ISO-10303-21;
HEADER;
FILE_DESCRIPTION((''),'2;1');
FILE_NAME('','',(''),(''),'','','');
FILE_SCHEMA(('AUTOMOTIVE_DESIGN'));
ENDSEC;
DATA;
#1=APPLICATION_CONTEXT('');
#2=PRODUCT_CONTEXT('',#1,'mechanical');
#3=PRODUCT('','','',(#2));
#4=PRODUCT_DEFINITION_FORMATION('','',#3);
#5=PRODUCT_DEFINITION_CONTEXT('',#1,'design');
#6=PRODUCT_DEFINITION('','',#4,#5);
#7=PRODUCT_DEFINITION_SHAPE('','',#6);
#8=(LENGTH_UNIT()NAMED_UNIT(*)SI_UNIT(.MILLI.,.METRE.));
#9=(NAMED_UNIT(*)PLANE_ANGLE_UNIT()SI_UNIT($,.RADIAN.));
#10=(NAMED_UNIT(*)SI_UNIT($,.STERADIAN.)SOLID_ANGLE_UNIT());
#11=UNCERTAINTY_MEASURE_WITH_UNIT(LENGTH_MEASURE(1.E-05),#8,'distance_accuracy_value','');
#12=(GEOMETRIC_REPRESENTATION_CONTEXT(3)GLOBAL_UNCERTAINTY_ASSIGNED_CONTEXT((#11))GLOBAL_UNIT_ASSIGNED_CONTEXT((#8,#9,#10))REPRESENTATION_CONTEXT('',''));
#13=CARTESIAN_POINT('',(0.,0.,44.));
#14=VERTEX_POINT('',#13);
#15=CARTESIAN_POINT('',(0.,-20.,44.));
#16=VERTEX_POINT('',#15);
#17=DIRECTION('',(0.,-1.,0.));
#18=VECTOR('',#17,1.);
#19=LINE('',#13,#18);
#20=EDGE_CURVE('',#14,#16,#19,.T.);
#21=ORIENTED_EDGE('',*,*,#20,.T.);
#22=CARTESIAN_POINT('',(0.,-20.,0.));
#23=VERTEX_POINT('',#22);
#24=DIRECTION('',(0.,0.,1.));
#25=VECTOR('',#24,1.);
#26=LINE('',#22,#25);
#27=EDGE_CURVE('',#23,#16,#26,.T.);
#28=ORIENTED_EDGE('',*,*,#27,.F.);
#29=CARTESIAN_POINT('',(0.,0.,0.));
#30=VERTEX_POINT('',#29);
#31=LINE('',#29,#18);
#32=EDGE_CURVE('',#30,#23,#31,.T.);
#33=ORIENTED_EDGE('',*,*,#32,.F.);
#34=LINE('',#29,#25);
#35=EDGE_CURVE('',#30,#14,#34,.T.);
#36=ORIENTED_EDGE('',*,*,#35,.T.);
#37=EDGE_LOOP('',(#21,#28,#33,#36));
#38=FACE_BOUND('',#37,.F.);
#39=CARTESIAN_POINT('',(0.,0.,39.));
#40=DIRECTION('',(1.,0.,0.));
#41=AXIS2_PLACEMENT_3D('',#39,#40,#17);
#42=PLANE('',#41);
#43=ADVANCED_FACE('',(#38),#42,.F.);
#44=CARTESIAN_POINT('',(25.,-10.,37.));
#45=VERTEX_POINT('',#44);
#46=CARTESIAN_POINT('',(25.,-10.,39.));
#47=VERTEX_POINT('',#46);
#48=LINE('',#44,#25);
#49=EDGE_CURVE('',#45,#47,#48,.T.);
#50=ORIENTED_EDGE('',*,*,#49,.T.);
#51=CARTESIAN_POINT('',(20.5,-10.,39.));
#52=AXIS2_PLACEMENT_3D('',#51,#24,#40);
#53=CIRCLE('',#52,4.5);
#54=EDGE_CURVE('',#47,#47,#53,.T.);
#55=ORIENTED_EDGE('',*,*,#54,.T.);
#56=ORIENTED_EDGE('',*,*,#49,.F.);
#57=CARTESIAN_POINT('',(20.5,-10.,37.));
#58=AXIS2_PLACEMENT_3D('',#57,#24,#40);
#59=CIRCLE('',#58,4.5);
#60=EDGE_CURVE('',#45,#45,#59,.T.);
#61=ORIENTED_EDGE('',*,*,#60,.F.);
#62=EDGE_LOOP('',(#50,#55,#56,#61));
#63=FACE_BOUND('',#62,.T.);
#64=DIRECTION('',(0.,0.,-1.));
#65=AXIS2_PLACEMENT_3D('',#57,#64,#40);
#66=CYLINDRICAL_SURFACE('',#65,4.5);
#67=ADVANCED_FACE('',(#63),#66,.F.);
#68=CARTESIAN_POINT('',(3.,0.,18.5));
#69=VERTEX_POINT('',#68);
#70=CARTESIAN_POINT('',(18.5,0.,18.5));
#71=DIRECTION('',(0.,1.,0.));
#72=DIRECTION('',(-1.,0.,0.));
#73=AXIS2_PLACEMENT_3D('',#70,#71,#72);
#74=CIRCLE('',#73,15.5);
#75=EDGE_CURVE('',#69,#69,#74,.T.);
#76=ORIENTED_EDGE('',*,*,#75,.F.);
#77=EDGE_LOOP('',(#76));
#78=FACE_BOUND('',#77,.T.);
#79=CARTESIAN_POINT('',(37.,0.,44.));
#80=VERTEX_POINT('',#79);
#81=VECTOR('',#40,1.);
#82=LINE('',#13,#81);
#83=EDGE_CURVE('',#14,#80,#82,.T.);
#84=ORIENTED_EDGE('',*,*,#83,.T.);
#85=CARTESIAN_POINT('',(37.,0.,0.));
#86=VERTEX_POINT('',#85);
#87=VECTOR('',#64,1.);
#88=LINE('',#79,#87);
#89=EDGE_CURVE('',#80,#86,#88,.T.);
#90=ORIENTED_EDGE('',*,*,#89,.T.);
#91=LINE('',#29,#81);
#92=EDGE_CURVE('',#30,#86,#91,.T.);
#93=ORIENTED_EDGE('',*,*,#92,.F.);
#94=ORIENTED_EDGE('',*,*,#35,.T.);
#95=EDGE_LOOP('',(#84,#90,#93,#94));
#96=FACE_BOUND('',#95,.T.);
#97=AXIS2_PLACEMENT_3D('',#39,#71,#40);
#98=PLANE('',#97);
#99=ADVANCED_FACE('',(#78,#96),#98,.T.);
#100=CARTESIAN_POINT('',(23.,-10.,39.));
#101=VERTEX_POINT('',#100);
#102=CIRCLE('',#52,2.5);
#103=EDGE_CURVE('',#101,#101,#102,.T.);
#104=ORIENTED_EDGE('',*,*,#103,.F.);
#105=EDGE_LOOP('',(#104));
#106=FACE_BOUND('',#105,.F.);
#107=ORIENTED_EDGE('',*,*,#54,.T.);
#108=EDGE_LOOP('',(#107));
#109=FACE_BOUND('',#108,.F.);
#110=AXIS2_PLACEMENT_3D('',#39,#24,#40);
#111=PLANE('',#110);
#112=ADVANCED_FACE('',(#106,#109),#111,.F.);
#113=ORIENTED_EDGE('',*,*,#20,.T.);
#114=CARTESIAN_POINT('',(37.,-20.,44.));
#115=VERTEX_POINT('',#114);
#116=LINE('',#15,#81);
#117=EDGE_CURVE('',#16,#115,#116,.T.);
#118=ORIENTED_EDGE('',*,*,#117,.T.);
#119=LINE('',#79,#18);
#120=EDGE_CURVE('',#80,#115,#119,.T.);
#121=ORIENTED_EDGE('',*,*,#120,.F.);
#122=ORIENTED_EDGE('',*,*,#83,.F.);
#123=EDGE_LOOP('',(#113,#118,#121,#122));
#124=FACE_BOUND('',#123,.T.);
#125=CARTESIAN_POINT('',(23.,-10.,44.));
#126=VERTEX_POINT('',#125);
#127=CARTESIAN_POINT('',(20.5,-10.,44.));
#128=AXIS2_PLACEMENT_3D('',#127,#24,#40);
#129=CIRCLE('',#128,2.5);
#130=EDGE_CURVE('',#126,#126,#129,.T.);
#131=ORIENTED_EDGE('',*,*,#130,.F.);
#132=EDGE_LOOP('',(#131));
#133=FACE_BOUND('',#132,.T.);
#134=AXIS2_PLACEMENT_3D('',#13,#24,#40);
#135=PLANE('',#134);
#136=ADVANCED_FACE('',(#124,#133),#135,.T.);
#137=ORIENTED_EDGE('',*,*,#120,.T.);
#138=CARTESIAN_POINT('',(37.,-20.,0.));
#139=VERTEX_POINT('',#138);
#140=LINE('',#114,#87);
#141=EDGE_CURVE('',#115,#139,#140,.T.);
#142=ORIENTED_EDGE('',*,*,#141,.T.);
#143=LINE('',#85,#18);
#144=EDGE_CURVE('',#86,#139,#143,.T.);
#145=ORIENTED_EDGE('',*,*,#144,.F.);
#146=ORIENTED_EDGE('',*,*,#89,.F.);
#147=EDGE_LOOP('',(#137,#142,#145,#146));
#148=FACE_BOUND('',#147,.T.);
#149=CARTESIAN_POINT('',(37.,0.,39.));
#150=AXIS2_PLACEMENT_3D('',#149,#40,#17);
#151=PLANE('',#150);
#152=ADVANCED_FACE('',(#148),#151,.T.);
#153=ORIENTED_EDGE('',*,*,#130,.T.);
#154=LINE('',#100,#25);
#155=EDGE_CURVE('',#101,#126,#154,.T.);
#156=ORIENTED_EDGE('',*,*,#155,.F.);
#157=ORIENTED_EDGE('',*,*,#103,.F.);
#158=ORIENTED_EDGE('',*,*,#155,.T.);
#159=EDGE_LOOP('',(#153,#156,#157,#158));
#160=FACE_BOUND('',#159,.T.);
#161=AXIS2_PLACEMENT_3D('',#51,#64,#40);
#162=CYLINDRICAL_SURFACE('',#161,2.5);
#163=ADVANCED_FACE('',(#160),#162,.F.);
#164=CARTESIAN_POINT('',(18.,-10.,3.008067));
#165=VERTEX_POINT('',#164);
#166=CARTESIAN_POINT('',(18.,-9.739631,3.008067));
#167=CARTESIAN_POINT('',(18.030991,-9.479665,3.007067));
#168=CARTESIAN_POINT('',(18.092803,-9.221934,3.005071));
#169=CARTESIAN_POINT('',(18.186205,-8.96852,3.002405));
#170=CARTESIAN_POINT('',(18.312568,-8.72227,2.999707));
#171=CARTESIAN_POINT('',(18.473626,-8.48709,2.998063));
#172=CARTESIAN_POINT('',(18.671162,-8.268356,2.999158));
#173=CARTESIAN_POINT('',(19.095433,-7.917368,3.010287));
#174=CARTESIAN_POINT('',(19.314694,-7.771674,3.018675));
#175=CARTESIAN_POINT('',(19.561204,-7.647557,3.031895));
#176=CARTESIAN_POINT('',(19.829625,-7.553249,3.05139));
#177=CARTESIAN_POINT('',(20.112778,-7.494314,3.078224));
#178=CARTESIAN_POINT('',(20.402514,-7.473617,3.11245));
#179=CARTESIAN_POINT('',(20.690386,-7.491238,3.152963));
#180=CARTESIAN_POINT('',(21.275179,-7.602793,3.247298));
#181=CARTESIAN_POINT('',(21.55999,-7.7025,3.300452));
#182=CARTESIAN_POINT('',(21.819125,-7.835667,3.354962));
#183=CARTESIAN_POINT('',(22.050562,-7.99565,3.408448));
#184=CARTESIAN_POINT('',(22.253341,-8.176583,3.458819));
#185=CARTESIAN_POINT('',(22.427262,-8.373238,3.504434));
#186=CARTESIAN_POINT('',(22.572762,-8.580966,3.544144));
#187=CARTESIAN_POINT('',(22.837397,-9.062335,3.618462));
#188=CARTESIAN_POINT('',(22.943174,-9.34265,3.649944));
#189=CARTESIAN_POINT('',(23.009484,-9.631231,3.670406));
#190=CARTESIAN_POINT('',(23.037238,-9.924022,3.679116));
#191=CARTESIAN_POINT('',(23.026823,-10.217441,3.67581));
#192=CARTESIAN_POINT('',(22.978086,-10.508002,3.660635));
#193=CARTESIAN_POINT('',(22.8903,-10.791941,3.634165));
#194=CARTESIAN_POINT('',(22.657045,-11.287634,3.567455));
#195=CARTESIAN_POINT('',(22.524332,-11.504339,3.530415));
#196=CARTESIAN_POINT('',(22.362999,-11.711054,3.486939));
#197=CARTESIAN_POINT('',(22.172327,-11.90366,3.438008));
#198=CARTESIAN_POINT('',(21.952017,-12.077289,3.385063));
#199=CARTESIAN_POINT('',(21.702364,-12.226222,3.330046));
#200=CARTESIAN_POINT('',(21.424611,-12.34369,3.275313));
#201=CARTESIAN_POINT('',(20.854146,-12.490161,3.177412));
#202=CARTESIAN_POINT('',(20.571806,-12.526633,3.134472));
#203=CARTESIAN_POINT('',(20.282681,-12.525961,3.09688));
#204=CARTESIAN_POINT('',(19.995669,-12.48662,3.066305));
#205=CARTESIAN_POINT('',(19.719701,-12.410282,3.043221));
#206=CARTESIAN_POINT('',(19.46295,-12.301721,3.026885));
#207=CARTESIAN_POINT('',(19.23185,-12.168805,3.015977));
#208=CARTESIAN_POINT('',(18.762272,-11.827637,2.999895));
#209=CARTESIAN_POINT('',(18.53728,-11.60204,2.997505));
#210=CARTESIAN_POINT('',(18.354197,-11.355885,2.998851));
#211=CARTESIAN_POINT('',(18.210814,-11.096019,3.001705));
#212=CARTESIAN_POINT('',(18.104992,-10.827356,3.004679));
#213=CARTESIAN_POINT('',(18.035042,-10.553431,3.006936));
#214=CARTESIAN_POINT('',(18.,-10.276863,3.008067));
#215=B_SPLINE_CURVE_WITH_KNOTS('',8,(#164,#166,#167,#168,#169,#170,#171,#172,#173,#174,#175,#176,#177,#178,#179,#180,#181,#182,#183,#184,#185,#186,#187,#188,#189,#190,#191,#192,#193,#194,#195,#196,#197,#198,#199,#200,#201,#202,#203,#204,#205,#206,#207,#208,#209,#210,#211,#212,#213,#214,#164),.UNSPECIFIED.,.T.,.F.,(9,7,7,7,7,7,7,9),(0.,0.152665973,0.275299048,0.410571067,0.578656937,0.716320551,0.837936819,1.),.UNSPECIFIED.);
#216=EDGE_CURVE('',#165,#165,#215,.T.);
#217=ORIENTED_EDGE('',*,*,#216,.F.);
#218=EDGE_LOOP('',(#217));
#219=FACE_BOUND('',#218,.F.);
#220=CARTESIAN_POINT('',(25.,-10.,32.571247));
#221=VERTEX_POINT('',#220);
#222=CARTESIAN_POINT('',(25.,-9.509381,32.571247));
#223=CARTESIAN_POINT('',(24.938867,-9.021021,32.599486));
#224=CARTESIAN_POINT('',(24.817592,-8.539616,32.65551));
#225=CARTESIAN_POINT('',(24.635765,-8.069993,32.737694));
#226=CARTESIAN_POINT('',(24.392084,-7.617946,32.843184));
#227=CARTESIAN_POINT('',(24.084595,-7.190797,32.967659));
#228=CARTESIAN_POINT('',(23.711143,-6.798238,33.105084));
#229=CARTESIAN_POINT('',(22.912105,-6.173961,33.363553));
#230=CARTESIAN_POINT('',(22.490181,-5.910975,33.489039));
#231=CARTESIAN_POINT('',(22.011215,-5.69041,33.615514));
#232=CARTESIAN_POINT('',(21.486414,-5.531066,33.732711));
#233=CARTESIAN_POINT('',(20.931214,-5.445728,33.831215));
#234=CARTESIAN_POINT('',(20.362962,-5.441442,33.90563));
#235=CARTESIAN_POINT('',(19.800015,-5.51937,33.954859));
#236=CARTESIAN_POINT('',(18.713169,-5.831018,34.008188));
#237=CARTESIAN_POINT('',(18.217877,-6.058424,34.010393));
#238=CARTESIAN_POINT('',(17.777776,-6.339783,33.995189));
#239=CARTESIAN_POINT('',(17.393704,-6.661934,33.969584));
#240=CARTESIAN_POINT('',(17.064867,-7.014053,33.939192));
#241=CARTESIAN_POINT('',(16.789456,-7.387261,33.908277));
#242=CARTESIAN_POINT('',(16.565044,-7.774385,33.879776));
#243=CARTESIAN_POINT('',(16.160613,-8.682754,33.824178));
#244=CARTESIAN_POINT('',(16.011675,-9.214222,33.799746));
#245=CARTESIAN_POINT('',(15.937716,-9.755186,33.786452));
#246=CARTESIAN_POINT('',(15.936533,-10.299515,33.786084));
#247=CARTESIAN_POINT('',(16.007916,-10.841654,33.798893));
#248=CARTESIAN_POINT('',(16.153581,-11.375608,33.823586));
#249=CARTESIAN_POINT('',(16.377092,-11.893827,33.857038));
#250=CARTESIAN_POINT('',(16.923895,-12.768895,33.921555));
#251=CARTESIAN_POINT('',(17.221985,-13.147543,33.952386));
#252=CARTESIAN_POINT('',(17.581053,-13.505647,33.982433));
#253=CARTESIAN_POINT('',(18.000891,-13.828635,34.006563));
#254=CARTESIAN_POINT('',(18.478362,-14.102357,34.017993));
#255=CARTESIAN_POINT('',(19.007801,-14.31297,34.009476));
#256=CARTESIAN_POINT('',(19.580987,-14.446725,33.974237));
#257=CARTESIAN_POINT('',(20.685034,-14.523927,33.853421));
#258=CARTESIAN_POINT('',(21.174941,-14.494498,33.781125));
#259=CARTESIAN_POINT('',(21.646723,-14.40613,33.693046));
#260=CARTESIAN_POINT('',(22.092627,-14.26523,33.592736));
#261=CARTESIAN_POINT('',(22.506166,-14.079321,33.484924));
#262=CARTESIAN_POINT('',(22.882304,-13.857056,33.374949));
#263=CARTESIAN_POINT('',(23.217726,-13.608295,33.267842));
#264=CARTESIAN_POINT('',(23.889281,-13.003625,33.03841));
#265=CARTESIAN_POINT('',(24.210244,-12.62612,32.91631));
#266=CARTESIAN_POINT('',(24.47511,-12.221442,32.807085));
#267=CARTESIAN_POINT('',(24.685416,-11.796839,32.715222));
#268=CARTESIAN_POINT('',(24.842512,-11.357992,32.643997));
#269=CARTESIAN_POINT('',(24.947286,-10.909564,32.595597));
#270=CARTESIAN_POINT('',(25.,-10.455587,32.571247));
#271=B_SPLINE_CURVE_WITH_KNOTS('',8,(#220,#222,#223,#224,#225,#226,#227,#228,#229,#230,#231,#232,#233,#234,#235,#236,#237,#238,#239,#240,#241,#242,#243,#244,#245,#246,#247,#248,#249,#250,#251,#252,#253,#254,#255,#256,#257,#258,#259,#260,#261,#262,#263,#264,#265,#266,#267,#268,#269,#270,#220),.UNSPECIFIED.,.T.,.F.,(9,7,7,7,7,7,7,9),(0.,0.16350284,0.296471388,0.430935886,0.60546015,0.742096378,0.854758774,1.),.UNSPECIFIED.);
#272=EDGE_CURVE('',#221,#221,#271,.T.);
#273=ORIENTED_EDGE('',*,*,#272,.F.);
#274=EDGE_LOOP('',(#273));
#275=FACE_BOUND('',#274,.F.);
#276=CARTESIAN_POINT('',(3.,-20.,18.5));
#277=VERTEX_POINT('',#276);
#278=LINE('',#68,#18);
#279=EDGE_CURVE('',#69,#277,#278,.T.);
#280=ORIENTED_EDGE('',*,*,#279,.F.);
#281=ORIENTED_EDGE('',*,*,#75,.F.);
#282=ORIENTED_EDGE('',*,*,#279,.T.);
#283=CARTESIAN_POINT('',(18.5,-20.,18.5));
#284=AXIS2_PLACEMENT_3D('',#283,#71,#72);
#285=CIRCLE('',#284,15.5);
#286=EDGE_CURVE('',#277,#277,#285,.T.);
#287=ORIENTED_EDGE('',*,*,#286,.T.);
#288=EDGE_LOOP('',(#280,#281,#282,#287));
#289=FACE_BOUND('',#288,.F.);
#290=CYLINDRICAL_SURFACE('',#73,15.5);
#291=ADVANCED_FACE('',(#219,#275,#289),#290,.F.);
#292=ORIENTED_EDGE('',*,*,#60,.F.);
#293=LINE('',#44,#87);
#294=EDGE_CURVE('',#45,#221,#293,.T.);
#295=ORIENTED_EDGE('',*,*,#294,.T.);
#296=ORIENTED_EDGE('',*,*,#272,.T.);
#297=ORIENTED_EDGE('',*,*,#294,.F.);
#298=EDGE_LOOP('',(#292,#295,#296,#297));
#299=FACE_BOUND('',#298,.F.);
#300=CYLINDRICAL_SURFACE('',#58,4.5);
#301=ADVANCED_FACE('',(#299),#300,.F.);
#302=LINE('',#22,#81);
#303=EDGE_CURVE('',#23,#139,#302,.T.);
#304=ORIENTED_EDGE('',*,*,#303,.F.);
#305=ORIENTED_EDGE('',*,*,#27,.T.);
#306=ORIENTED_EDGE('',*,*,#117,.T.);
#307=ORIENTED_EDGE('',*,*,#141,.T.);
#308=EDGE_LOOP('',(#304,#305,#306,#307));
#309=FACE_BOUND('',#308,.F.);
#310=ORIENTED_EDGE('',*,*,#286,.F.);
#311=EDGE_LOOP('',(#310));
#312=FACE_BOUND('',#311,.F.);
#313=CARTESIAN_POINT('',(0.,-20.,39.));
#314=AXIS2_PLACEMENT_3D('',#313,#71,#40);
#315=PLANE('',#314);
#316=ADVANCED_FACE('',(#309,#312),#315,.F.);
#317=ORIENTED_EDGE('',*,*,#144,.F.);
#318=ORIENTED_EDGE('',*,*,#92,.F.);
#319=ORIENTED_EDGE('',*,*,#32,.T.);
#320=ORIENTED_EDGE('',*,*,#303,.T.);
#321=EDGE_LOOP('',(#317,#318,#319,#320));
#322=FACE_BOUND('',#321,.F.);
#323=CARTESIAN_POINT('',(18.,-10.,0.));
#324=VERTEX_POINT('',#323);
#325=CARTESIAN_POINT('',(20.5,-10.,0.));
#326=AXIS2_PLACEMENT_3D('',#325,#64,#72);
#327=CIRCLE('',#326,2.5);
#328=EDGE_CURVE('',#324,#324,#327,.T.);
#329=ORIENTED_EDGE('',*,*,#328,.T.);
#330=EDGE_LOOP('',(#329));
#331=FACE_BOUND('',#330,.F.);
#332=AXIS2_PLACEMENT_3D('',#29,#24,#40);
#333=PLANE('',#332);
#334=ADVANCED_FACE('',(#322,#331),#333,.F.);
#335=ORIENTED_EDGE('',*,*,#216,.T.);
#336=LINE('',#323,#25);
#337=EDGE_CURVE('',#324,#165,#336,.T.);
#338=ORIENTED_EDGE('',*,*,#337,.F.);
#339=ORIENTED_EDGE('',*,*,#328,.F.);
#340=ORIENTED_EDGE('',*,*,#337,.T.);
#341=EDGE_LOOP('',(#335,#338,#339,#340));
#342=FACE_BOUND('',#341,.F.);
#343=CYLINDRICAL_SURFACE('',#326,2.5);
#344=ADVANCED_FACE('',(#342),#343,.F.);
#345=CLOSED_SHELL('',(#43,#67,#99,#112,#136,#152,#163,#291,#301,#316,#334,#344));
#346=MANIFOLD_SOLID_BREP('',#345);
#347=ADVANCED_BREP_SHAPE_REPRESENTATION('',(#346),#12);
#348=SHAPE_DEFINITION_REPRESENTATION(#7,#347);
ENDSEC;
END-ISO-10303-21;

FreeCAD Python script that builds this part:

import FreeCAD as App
import Part
import Sketcher

V = App.Vector


def add_polygon(sketch, points):
    """Adds a closed chain of lines whose ends are joined by coincident constraints."""
    first, n = sketch.GeometryCount, len(points)
    for a, b in zip(points, points[1:] + points[:1]):
        sketch.addGeometry(Part.LineSegment(App.Vector(*a, 0), App.Vector(*b, 0)), False)
    for i in range(n):
        sketch.addConstraint(Sketcher.Constraint("Coincident", first + i, 2, first + (i + 1) % n, 1))

doc = App.newDocument("Part")
body = doc.addObject("PartDesign::Body", "Body")

# Sketch on XZ plane
sketch1 = body.newObject("Sketcher::SketchObject", "Sketch")
sketch1.AttachmentSupport = (doc.getObject("XZ_Plane"), [""])
sketch1.MapMode = "FlatFace"
add_polygon(sketch1, [(37, 0), (0, 0), (0, 37), (37, 37)])  # lines 0-3
sketch1.addGeometry(Part.Circle(V(18, 18, 0), V(0, 0, 1), 16), False)  # 4
sketch1.addConstraint([
    Sketcher.Constraint("Horizontal", 0),
    Sketcher.Constraint("Vertical", 1),
    Sketcher.Constraint("Horizontal", 2),
    Sketcher.Constraint("Vertical", 3),
    Sketcher.Constraint("Coincident", 0, 2, -1, 1),
    Sketcher.Constraint("Equal", 2, 1),
    Sketcher.Constraint("Diameter", 4, 31.0),
    Sketcher.Constraint("DistanceX", 0, 2, 0, 1, 37.0),
    Sketcher.Constraint("DistanceX", -1, 1, 4, 3, 18.5),
    Sketcher.Constraint("DistanceY", -1, 1, 4, 3, 18.5),
])
pad1 = body.newObject("PartDesign::Pad", "Pad")
pad1.Profile = sketch1
pad1.Length = 20

# Sketch on XY plane
sketch2 = body.newObject("Sketcher::SketchObject", "Sketch001")
sketch2.AttachmentSupport = (doc.getObject("XY_Plane"), [""])
sketch2.MapMode = "FlatFace"
sketch2.AttachmentOffset = App.Placement(V(0, 0, 37), App.Rotation())
sketch2.addGeometry(Part.Circle(V(20.5, -10, 0), V(0, 0, 1), 4.5), False)
sketch2.addConstraint([
    Sketcher.Constraint("Diameter", 0, 9.0),
    Sketcher.Constraint("DistanceY", 0, 3, -1, 1, 10.0),
    Sketcher.Constraint("DistanceX", -1, 1, 0, 3, 20.5),
])
pocket1 = body.newObject("PartDesign::Pocket", "Pocket")
pocket1.Profile = sketch2
pocket1.Length = 5

# Sketch on XY plane
sketch3 = body.newObject("Sketcher::SketchObject", "Sketch002")
sketch3.AttachmentSupport = (doc.getObject("XY_Plane"), [""])
sketch3.MapMode = "FlatFace"
sketch3.addGeometry(Part.Circle(V(20.5, -10, 0), V(0, 0, 1), 2.5), False)
sketch3.addConstraint([
    Sketcher.Constraint("Diameter", 0, 5.0),
    Sketcher.Constraint("DistanceY", 0, 3, -1, 1, 10.0),
    Sketcher.Constraint("DistanceX", -1, 1, 0, 3, 20.5),
])
pocket2 = body.newObject("PartDesign::Pocket", "Pocket001")
pocket2.Profile = sketch3
pocket2.Length = 5
pocket2.Reversed = True

# Sketch on XY plane
sketch4 = body.newObject("Sketcher::SketchObject", "Sketch003")
sketch4.AttachmentSupport = (doc.getObject("XY_Plane"), [""])
sketch4.MapMode = "FlatFace"
sketch4.AttachmentOffset = App.Placement(V(0, 0, 37), App.Rotation())
add_polygon(sketch4, [(37, -20), (37, 0), (0, 0), (0, -20)])  # lines 0-3
sketch4.addGeometry(Part.Circle(V(20.5, -10, 0), V(0, 0, 1), 4.5), False)  # 4
sketch4.addConstraint([
    Sketcher.Constraint("Vertical", 0),
    Sketcher.Constraint("Horizontal", 1),
    Sketcher.Constraint("Vertical", 2),
    Sketcher.Constraint("Horizontal", 3),
    Sketcher.Constraint("Coincident", 1, 2, -1, 1),
    Sketcher.Constraint("Diameter", 4, 9.0),
    Sketcher.Constraint("DistanceX", 1, 2, 1, 1, 37.0),
    Sketcher.Constraint("DistanceY", 0, 1, 0, 2, 20.0),
    Sketcher.Constraint("DistanceY", 4, 3, -1, 1, 10.0),
    Sketcher.Constraint("DistanceX", -1, 1, 4, 3, 20.5),
])
pad2 = body.newObject("PartDesign::Pad", "Pad001")
pad2.Profile = sketch4
pad2.Length = 2

# Sketch on XY plane
sketch5 = body.newObject("Sketcher::SketchObject", "Sketch004")
sketch5.AttachmentSupport = (doc.getObject("XY_Plane"), [""])
sketch5.MapMode = "FlatFace"
sketch5.AttachmentOffset = App.Placement(V(0, 0, 39), App.Rotation())
add_polygon(sketch5, [(37, 0), (0, 0), (0, -20), (37, -20)])  # lines 0-3
sketch5.addGeometry(Part.Circle(V(20.5, -10, 0), V(0, 0, 1), 2.5), False)  # 4
sketch5.addConstraint([
    Sketcher.Constraint("Horizontal", 0),
    Sketcher.Constraint("Vertical", 1),
    Sketcher.Constraint("Horizontal", 2),
    Sketcher.Constraint("Vertical", 3),
    Sketcher.Constraint("Coincident", 0, 2, -1, 1),
    Sketcher.Constraint("Diameter", 4, 5.0),
    Sketcher.Constraint("DistanceX", 0, 2, 0, 1, 37.0),
    Sketcher.Constraint("DistanceY", 1, 2, 1, 1, 20.0),
    Sketcher.Constraint("DistanceY", 4, 3, -1, 1, 10.0),
    Sketcher.Constraint("DistanceX", -1, 1, 4, 3, 20.5),
])
pad3 = body.newObject("PartDesign::Pad", "Pad002")
pad3.Profile = sketch5
pad3.Length = 5

doc.recompute()
